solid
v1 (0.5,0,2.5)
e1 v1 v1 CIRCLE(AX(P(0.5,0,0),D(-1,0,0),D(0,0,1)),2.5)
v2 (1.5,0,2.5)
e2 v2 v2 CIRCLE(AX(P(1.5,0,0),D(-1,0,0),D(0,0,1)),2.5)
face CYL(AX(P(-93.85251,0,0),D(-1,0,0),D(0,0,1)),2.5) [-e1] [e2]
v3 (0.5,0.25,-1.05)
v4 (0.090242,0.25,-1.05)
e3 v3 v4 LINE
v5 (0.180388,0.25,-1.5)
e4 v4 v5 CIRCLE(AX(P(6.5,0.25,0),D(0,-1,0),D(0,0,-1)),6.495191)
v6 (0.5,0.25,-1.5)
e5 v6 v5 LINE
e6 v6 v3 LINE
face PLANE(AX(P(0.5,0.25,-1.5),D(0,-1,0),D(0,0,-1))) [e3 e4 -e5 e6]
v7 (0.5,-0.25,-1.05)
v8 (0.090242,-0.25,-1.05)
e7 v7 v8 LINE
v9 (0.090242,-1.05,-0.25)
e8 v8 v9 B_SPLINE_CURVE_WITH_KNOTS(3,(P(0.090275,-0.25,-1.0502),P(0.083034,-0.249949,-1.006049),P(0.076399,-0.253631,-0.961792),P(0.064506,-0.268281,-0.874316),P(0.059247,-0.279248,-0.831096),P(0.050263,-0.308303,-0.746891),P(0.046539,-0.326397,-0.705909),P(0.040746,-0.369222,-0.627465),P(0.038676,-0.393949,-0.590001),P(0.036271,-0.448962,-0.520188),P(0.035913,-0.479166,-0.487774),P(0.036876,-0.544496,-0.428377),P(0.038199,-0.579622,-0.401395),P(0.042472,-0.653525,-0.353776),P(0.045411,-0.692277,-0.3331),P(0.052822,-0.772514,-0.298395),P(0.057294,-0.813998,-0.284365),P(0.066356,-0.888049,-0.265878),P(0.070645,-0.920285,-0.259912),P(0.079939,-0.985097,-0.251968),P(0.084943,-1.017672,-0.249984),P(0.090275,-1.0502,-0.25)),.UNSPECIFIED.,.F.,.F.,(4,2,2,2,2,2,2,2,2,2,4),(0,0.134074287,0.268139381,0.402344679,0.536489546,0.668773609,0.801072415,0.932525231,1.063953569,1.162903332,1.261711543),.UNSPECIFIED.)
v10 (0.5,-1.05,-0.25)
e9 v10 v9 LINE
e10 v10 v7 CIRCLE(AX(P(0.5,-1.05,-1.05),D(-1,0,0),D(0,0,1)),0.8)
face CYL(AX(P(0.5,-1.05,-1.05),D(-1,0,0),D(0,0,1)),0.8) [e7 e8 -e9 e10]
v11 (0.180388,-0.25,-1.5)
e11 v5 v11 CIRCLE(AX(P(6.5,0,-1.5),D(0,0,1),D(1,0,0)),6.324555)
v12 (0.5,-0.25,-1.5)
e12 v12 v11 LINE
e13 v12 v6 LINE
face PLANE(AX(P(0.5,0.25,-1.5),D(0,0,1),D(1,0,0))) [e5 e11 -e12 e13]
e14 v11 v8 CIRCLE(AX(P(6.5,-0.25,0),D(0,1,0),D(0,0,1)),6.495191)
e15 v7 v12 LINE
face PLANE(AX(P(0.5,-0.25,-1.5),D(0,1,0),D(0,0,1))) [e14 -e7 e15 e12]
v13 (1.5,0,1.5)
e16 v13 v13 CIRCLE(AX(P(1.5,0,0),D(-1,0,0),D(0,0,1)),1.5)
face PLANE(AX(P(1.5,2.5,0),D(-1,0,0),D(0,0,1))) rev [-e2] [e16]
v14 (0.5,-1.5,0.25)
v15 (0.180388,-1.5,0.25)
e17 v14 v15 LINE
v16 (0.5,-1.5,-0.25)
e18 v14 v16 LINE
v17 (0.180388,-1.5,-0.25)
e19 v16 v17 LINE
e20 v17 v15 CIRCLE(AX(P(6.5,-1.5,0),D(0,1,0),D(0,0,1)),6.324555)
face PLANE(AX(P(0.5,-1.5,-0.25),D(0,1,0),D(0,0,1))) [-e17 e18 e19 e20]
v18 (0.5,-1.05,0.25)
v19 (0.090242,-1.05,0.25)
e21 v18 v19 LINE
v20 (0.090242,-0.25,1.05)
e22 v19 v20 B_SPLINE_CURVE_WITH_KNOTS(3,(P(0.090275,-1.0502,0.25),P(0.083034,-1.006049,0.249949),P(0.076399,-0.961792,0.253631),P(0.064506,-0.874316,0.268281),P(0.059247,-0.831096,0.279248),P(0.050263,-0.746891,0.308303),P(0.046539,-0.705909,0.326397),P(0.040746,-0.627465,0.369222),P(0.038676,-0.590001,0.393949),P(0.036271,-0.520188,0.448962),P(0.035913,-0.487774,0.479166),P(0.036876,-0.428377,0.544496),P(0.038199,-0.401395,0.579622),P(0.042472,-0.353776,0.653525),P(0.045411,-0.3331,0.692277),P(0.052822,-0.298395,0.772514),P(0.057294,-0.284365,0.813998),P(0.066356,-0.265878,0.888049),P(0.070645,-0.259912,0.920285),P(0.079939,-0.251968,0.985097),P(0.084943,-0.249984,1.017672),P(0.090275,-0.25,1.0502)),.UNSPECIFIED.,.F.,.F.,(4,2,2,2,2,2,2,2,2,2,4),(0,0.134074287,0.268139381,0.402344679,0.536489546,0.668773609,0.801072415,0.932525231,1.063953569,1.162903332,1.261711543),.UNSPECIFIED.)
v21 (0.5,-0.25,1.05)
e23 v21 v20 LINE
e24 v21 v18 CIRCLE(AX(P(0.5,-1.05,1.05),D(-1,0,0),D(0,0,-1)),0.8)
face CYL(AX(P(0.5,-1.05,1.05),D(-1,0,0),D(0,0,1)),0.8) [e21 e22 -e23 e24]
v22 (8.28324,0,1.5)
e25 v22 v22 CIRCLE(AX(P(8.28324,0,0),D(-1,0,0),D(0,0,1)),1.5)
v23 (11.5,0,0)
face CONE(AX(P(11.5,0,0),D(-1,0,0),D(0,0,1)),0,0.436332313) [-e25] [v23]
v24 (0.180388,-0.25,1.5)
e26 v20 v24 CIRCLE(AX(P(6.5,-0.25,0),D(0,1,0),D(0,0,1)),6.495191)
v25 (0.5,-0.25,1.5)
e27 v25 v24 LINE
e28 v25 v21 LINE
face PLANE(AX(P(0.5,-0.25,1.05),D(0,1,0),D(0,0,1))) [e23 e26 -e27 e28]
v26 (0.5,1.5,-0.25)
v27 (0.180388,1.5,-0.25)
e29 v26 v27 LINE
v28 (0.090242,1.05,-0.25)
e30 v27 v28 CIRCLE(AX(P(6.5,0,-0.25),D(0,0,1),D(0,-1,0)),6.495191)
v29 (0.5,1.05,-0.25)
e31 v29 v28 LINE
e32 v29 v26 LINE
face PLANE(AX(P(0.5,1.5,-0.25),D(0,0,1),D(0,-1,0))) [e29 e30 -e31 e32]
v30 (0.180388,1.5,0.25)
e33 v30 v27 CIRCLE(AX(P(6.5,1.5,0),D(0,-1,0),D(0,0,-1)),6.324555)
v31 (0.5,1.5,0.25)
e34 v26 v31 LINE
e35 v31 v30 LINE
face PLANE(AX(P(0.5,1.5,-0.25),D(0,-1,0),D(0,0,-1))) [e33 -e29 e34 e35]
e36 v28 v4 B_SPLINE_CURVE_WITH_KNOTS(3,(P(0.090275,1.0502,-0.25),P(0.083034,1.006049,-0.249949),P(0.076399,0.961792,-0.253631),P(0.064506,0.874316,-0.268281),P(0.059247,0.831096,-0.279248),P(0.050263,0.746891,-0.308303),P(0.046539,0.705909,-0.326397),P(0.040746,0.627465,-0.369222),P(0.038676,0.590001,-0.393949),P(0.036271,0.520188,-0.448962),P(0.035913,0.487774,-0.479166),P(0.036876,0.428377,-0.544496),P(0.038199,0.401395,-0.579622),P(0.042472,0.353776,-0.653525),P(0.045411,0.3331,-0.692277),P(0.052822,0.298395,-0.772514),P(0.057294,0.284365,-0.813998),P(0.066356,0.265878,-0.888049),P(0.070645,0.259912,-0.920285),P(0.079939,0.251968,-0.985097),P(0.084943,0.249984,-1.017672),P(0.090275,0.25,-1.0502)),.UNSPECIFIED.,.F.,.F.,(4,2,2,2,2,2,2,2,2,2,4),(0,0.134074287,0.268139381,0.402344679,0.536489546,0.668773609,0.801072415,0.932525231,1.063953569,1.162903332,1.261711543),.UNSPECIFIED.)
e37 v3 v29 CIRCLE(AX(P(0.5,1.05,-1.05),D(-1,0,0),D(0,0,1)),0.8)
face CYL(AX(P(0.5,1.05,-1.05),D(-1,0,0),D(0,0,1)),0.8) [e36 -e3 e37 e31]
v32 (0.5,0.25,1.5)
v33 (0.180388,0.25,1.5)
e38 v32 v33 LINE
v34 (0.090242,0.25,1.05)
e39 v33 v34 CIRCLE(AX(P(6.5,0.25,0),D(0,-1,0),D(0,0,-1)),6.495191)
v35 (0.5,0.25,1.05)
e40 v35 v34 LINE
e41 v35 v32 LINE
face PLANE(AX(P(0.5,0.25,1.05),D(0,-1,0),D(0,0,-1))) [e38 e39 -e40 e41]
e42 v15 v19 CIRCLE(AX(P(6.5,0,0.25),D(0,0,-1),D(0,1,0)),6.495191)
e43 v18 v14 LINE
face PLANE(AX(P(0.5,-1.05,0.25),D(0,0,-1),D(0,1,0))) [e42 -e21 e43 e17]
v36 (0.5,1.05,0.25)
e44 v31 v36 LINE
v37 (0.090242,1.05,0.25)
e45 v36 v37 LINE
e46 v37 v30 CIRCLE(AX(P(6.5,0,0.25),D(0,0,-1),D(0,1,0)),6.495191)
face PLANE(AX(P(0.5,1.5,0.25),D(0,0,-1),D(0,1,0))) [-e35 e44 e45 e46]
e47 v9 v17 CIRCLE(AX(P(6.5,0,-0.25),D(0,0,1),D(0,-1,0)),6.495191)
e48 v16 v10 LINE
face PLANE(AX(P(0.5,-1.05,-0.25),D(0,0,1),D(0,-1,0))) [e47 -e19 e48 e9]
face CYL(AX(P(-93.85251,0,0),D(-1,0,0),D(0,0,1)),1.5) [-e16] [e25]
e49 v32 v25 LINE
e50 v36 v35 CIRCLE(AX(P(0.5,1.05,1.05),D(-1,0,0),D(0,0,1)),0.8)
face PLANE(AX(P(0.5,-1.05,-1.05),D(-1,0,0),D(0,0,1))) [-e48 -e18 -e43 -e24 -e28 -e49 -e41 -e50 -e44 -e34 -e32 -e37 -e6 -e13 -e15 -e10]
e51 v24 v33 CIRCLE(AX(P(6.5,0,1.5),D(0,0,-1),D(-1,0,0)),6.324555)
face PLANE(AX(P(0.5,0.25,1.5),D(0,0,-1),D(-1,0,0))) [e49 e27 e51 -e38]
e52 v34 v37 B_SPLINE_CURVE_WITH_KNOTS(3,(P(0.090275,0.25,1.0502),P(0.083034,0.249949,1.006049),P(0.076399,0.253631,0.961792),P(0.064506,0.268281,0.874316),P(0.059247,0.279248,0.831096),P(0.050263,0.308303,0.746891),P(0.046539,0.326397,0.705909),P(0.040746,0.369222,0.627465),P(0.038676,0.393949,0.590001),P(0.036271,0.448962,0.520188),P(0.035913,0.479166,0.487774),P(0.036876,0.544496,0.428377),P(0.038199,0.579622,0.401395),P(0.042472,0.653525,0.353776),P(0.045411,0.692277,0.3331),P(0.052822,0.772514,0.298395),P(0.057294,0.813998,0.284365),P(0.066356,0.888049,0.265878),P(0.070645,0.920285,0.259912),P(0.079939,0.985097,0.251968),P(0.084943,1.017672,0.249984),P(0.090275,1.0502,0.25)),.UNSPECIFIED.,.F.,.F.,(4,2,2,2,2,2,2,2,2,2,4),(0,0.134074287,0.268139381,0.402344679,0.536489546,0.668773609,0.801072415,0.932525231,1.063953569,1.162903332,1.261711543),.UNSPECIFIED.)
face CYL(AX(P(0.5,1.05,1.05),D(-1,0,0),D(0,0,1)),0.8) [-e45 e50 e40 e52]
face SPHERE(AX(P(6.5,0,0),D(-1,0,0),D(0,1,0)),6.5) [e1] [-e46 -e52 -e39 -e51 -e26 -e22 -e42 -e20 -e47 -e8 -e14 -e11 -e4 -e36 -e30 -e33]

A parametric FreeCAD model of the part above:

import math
import FreeCAD as App
import Part
import Sketcher

V = App.Vector
Q = App.Units.Quantity

doc = App.newDocument("Part")
body = doc.addObject("PartDesign::Body", "Body")

# Sketch on XY plane
sketch1 = body.newObject("Sketcher::SketchObject", "Sketch")
sketch1.AttachmentSupport = (doc.getObject("XY_Plane"), [""])
sketch1.MapMode = "FlatFace"
sketch1.addGeometry([
    Part.LineSegment(V(1.5, 1.5, 0), V(1.5, 2.5, 0)),  # 0
    Part.LineSegment(V(1.5, 2.5, 0), V(0.5, 2.5, 0)),  # 1
    Part.ArcOfCircle(Part.Circle(V(6.5, 0, 0), V(0, 0, 1), 6.5), math.radians(157), math.radians(180)),  # 2
    Part.LineSegment(V(0, 0, 0), V(11.5, 0, 0)),  # 3
    Part.LineSegment(V(11.5, 0, 0), V(8.3, 1.5, 0)),  # 4
    Part.LineSegment(V(8.3, 1.5, 0), V(1.5, 1.5, 0)),  # 5
], False)
sketch1.addConstraint([
    Sketcher.Constraint("Coincident", 0, 2, 1, 1),
    Sketcher.Constraint("Coincident", 1, 2, 2, 1),
    Sketcher.Constraint("Coincident", 2, 2, 3, 1),
    Sketcher.Constraint("Coincident", 3, 2, 4, 1),
    Sketcher.Constraint("Coincident", 4, 2, 5, 1),
    Sketcher.Constraint("Coincident", 5, 2, 0, 1),
    Sketcher.Constraint("Vertical", 0),
    Sketcher.Constraint("Horizontal", 1),
    Sketcher.Constraint("Horizontal", 3),
    Sketcher.Constraint("Horizontal", 5),
    Sketcher.Constraint("Coincident", 2, 2, -1, 1),
    Sketcher.Constraint("PointOnObject", 2, 3, -1),
    Sketcher.Constraint("Equal", 1, 0),
    Sketcher.Constraint("Radius", 2, Q("6.5 mm")),
    Sketcher.Constraint("DistanceX", 1, 2, 1, 1, Q("1 mm")),
    Sketcher.Constraint("Angle", 4, Q("155 deg")),
    Sketcher.Constraint("DistanceX", 3, 1, 3, 2, Q("11.5 mm")),
    Sketcher.Constraint("DistanceX", 0, 2, 2, 3, Q("5 mm")),
])
revolution = body.newObject("PartDesign::Revolution", "Revolution")
revolution.Profile = sketch1
revolution.ReferenceAxis = (sketch1, ["H_Axis"])
revolution.Angle = 360

# Sketch on YZ plane
sketch2 = body.newObject("Sketcher::SketchObject", "Sketch001")
sketch2.AttachmentSupport = (doc.getObject("YZ_Plane"), [""])
sketch2.MapMode = "FlatFace"
sketch2.addGeometry([
    Part.LineSegment(V(0.25, -1.5, 0), V(0.25, -1.05, 0)),  # 0
    Part.ArcOfCircle(Part.Circle(V(1.05, -1.05, 0), V(0, 0, 1), 0.8), math.radians(90), math.radians(180)),  # 1
    Part.LineSegment(V(1.05, -0.25, 0), V(1.5, -0.25, 0)),  # 2
    Part.LineSegment(V(1.5, -0.25, 0), V(1.5, 0.25, 0)),  # 3
    Part.LineSegment(V(1.5, 0.25, 0), V(1.05, 0.25, 0)),  # 4
    Part.ArcOfCircle(Part.Circle(V(1.05, 1.05, 0), V(0, 0, 1), 0.8), math.radians(180), math.radians(270)),  # 5
    Part.LineSegment(V(0.25, 1.05, 0), V(0.25, 1.5, 0)),  # 6
    Part.LineSegment(V(0.25, 1.5, 0), V(-0.25, 1.5, 0)),  # 7
    Part.LineSegment(V(-0.25, 1.5, 0), V(-0.25, 1.05, 0)),  # 8
    Part.ArcOfCircle(Part.Circle(V(-1.05, 1.05, 0), V(0, 0, 1), 0.8), math.radians(-90), math.radians(0)),  # 9
    Part.LineSegment(V(-1.05, 0.25, 0), V(-1.5, 0.25, 0)),  # 10
    Part.LineSegment(V(-1.5, 0.25, 0), V(-1.5, -0.25, 0)),  # 11
    Part.LineSegment(V(-1.5, -0.25, 0), V(-1.05, -0.25, 0)),  # 12
    Part.ArcOfCircle(Part.Circle(V(-1.05, -1.05, 0), V(0, 0, 1), 0.8), math.radians(0), math.radians(90)),  # 13
    Part.LineSegment(V(-0.25, -1.05, 0), V(-0.25, -1.5, 0)),  # 14
    Part.LineSegment(V(-0.25, -1.5, 0), V(0.25, -1.5, 0)),  # 15
], False)
sketch2.addConstraint([
    Sketcher.Constraint("Tangent", 0, 2, 1, 2),
    Sketcher.Constraint("Tangent", 1, 1, 2, 1),
    Sketcher.Constraint("Coincident", 2, 2, 3, 1),
    Sketcher.Constraint("Coincident", 3, 2, 4, 1),
    Sketcher.Constraint("Tangent", 4, 2, 5, 2),
    Sketcher.Constraint("Tangent", 5, 1, 6, 1),
    Sketcher.Constraint("Coincident", 6, 2, 7, 1),
    Sketcher.Constraint("Coincident", 7, 2, 8, 1),
    Sketcher.Constraint("Tangent", 8, 2, 9, 2),
    Sketcher.Constraint("Tangent", 9, 1, 10, 1),
    Sketcher.Constraint("Coincident", 10, 2, 11, 1),
    Sketcher.Constraint("Coincident", 11, 2, 12, 1),
    Sketcher.Constraint("Tangent", 12, 2, 13, 2),
    Sketcher.Constraint("Tangent", 13, 1, 14, 1),
    Sketcher.Constraint("Coincident", 14, 2, 15, 1),
    Sketcher.Constraint("Coincident", 15, 2, 0, 1),
    Sketcher.Constraint("Vertical", 0),
    Sketcher.Constraint("Horizontal", 2),
    Sketcher.Constraint("Vertical", 3),
    Sketcher.Constraint("Horizontal", 4),
    Sketcher.Constraint("Vertical", 6),
    Sketcher.Constraint("Horizontal", 7),
    Sketcher.Constraint("Vertical", 8),
    Sketcher.Constraint("Horizontal", 10),
    Sketcher.Constraint("Vertical", 11),
    Sketcher.Constraint("Horizontal", 12),
    Sketcher.Constraint("Vertical", 14),
    Sketcher.Constraint("Horizontal", 15),
    Sketcher.Constraint("Equal", 1, 5),
    Sketcher.Constraint("Equal", 5, 9),
    Sketcher.Constraint("Equal", 9, 13),
    Sketcher.Constraint("Symmetric", 1, 3, 9, 3, -1, 1),
    Sketcher.Constraint("Symmetric", 5, 3, 13, 3, -1, 1),
    Sketcher.Constraint("Symmetric", 5, 3, 9, 3, -2),
    Sketcher.Constraint("Equal", 4, 10),
    Sketcher.Constraint("Equal", 12, 0),
    Sketcher.Constraint("Equal", 15, 3),
    Sketcher.Constraint("Equal", 0, 6),
    Sketcher.Constraint("Radius", 1, Q("0.8 mm")),
    Sketcher.Constraint("DistanceX", 7, 2, 7, 1, Q("0.5 mm")),
    Sketcher.Constraint("DistanceX", 2, 1, 2, 2, Q("0.45 mm")),
])
pocket1 = body.newObject("PartDesign::Pocket", "Pocket")
pocket1.Profile = sketch2
pocket1.Length = 0.5
pocket1.Reversed = True

doc.recompute()
